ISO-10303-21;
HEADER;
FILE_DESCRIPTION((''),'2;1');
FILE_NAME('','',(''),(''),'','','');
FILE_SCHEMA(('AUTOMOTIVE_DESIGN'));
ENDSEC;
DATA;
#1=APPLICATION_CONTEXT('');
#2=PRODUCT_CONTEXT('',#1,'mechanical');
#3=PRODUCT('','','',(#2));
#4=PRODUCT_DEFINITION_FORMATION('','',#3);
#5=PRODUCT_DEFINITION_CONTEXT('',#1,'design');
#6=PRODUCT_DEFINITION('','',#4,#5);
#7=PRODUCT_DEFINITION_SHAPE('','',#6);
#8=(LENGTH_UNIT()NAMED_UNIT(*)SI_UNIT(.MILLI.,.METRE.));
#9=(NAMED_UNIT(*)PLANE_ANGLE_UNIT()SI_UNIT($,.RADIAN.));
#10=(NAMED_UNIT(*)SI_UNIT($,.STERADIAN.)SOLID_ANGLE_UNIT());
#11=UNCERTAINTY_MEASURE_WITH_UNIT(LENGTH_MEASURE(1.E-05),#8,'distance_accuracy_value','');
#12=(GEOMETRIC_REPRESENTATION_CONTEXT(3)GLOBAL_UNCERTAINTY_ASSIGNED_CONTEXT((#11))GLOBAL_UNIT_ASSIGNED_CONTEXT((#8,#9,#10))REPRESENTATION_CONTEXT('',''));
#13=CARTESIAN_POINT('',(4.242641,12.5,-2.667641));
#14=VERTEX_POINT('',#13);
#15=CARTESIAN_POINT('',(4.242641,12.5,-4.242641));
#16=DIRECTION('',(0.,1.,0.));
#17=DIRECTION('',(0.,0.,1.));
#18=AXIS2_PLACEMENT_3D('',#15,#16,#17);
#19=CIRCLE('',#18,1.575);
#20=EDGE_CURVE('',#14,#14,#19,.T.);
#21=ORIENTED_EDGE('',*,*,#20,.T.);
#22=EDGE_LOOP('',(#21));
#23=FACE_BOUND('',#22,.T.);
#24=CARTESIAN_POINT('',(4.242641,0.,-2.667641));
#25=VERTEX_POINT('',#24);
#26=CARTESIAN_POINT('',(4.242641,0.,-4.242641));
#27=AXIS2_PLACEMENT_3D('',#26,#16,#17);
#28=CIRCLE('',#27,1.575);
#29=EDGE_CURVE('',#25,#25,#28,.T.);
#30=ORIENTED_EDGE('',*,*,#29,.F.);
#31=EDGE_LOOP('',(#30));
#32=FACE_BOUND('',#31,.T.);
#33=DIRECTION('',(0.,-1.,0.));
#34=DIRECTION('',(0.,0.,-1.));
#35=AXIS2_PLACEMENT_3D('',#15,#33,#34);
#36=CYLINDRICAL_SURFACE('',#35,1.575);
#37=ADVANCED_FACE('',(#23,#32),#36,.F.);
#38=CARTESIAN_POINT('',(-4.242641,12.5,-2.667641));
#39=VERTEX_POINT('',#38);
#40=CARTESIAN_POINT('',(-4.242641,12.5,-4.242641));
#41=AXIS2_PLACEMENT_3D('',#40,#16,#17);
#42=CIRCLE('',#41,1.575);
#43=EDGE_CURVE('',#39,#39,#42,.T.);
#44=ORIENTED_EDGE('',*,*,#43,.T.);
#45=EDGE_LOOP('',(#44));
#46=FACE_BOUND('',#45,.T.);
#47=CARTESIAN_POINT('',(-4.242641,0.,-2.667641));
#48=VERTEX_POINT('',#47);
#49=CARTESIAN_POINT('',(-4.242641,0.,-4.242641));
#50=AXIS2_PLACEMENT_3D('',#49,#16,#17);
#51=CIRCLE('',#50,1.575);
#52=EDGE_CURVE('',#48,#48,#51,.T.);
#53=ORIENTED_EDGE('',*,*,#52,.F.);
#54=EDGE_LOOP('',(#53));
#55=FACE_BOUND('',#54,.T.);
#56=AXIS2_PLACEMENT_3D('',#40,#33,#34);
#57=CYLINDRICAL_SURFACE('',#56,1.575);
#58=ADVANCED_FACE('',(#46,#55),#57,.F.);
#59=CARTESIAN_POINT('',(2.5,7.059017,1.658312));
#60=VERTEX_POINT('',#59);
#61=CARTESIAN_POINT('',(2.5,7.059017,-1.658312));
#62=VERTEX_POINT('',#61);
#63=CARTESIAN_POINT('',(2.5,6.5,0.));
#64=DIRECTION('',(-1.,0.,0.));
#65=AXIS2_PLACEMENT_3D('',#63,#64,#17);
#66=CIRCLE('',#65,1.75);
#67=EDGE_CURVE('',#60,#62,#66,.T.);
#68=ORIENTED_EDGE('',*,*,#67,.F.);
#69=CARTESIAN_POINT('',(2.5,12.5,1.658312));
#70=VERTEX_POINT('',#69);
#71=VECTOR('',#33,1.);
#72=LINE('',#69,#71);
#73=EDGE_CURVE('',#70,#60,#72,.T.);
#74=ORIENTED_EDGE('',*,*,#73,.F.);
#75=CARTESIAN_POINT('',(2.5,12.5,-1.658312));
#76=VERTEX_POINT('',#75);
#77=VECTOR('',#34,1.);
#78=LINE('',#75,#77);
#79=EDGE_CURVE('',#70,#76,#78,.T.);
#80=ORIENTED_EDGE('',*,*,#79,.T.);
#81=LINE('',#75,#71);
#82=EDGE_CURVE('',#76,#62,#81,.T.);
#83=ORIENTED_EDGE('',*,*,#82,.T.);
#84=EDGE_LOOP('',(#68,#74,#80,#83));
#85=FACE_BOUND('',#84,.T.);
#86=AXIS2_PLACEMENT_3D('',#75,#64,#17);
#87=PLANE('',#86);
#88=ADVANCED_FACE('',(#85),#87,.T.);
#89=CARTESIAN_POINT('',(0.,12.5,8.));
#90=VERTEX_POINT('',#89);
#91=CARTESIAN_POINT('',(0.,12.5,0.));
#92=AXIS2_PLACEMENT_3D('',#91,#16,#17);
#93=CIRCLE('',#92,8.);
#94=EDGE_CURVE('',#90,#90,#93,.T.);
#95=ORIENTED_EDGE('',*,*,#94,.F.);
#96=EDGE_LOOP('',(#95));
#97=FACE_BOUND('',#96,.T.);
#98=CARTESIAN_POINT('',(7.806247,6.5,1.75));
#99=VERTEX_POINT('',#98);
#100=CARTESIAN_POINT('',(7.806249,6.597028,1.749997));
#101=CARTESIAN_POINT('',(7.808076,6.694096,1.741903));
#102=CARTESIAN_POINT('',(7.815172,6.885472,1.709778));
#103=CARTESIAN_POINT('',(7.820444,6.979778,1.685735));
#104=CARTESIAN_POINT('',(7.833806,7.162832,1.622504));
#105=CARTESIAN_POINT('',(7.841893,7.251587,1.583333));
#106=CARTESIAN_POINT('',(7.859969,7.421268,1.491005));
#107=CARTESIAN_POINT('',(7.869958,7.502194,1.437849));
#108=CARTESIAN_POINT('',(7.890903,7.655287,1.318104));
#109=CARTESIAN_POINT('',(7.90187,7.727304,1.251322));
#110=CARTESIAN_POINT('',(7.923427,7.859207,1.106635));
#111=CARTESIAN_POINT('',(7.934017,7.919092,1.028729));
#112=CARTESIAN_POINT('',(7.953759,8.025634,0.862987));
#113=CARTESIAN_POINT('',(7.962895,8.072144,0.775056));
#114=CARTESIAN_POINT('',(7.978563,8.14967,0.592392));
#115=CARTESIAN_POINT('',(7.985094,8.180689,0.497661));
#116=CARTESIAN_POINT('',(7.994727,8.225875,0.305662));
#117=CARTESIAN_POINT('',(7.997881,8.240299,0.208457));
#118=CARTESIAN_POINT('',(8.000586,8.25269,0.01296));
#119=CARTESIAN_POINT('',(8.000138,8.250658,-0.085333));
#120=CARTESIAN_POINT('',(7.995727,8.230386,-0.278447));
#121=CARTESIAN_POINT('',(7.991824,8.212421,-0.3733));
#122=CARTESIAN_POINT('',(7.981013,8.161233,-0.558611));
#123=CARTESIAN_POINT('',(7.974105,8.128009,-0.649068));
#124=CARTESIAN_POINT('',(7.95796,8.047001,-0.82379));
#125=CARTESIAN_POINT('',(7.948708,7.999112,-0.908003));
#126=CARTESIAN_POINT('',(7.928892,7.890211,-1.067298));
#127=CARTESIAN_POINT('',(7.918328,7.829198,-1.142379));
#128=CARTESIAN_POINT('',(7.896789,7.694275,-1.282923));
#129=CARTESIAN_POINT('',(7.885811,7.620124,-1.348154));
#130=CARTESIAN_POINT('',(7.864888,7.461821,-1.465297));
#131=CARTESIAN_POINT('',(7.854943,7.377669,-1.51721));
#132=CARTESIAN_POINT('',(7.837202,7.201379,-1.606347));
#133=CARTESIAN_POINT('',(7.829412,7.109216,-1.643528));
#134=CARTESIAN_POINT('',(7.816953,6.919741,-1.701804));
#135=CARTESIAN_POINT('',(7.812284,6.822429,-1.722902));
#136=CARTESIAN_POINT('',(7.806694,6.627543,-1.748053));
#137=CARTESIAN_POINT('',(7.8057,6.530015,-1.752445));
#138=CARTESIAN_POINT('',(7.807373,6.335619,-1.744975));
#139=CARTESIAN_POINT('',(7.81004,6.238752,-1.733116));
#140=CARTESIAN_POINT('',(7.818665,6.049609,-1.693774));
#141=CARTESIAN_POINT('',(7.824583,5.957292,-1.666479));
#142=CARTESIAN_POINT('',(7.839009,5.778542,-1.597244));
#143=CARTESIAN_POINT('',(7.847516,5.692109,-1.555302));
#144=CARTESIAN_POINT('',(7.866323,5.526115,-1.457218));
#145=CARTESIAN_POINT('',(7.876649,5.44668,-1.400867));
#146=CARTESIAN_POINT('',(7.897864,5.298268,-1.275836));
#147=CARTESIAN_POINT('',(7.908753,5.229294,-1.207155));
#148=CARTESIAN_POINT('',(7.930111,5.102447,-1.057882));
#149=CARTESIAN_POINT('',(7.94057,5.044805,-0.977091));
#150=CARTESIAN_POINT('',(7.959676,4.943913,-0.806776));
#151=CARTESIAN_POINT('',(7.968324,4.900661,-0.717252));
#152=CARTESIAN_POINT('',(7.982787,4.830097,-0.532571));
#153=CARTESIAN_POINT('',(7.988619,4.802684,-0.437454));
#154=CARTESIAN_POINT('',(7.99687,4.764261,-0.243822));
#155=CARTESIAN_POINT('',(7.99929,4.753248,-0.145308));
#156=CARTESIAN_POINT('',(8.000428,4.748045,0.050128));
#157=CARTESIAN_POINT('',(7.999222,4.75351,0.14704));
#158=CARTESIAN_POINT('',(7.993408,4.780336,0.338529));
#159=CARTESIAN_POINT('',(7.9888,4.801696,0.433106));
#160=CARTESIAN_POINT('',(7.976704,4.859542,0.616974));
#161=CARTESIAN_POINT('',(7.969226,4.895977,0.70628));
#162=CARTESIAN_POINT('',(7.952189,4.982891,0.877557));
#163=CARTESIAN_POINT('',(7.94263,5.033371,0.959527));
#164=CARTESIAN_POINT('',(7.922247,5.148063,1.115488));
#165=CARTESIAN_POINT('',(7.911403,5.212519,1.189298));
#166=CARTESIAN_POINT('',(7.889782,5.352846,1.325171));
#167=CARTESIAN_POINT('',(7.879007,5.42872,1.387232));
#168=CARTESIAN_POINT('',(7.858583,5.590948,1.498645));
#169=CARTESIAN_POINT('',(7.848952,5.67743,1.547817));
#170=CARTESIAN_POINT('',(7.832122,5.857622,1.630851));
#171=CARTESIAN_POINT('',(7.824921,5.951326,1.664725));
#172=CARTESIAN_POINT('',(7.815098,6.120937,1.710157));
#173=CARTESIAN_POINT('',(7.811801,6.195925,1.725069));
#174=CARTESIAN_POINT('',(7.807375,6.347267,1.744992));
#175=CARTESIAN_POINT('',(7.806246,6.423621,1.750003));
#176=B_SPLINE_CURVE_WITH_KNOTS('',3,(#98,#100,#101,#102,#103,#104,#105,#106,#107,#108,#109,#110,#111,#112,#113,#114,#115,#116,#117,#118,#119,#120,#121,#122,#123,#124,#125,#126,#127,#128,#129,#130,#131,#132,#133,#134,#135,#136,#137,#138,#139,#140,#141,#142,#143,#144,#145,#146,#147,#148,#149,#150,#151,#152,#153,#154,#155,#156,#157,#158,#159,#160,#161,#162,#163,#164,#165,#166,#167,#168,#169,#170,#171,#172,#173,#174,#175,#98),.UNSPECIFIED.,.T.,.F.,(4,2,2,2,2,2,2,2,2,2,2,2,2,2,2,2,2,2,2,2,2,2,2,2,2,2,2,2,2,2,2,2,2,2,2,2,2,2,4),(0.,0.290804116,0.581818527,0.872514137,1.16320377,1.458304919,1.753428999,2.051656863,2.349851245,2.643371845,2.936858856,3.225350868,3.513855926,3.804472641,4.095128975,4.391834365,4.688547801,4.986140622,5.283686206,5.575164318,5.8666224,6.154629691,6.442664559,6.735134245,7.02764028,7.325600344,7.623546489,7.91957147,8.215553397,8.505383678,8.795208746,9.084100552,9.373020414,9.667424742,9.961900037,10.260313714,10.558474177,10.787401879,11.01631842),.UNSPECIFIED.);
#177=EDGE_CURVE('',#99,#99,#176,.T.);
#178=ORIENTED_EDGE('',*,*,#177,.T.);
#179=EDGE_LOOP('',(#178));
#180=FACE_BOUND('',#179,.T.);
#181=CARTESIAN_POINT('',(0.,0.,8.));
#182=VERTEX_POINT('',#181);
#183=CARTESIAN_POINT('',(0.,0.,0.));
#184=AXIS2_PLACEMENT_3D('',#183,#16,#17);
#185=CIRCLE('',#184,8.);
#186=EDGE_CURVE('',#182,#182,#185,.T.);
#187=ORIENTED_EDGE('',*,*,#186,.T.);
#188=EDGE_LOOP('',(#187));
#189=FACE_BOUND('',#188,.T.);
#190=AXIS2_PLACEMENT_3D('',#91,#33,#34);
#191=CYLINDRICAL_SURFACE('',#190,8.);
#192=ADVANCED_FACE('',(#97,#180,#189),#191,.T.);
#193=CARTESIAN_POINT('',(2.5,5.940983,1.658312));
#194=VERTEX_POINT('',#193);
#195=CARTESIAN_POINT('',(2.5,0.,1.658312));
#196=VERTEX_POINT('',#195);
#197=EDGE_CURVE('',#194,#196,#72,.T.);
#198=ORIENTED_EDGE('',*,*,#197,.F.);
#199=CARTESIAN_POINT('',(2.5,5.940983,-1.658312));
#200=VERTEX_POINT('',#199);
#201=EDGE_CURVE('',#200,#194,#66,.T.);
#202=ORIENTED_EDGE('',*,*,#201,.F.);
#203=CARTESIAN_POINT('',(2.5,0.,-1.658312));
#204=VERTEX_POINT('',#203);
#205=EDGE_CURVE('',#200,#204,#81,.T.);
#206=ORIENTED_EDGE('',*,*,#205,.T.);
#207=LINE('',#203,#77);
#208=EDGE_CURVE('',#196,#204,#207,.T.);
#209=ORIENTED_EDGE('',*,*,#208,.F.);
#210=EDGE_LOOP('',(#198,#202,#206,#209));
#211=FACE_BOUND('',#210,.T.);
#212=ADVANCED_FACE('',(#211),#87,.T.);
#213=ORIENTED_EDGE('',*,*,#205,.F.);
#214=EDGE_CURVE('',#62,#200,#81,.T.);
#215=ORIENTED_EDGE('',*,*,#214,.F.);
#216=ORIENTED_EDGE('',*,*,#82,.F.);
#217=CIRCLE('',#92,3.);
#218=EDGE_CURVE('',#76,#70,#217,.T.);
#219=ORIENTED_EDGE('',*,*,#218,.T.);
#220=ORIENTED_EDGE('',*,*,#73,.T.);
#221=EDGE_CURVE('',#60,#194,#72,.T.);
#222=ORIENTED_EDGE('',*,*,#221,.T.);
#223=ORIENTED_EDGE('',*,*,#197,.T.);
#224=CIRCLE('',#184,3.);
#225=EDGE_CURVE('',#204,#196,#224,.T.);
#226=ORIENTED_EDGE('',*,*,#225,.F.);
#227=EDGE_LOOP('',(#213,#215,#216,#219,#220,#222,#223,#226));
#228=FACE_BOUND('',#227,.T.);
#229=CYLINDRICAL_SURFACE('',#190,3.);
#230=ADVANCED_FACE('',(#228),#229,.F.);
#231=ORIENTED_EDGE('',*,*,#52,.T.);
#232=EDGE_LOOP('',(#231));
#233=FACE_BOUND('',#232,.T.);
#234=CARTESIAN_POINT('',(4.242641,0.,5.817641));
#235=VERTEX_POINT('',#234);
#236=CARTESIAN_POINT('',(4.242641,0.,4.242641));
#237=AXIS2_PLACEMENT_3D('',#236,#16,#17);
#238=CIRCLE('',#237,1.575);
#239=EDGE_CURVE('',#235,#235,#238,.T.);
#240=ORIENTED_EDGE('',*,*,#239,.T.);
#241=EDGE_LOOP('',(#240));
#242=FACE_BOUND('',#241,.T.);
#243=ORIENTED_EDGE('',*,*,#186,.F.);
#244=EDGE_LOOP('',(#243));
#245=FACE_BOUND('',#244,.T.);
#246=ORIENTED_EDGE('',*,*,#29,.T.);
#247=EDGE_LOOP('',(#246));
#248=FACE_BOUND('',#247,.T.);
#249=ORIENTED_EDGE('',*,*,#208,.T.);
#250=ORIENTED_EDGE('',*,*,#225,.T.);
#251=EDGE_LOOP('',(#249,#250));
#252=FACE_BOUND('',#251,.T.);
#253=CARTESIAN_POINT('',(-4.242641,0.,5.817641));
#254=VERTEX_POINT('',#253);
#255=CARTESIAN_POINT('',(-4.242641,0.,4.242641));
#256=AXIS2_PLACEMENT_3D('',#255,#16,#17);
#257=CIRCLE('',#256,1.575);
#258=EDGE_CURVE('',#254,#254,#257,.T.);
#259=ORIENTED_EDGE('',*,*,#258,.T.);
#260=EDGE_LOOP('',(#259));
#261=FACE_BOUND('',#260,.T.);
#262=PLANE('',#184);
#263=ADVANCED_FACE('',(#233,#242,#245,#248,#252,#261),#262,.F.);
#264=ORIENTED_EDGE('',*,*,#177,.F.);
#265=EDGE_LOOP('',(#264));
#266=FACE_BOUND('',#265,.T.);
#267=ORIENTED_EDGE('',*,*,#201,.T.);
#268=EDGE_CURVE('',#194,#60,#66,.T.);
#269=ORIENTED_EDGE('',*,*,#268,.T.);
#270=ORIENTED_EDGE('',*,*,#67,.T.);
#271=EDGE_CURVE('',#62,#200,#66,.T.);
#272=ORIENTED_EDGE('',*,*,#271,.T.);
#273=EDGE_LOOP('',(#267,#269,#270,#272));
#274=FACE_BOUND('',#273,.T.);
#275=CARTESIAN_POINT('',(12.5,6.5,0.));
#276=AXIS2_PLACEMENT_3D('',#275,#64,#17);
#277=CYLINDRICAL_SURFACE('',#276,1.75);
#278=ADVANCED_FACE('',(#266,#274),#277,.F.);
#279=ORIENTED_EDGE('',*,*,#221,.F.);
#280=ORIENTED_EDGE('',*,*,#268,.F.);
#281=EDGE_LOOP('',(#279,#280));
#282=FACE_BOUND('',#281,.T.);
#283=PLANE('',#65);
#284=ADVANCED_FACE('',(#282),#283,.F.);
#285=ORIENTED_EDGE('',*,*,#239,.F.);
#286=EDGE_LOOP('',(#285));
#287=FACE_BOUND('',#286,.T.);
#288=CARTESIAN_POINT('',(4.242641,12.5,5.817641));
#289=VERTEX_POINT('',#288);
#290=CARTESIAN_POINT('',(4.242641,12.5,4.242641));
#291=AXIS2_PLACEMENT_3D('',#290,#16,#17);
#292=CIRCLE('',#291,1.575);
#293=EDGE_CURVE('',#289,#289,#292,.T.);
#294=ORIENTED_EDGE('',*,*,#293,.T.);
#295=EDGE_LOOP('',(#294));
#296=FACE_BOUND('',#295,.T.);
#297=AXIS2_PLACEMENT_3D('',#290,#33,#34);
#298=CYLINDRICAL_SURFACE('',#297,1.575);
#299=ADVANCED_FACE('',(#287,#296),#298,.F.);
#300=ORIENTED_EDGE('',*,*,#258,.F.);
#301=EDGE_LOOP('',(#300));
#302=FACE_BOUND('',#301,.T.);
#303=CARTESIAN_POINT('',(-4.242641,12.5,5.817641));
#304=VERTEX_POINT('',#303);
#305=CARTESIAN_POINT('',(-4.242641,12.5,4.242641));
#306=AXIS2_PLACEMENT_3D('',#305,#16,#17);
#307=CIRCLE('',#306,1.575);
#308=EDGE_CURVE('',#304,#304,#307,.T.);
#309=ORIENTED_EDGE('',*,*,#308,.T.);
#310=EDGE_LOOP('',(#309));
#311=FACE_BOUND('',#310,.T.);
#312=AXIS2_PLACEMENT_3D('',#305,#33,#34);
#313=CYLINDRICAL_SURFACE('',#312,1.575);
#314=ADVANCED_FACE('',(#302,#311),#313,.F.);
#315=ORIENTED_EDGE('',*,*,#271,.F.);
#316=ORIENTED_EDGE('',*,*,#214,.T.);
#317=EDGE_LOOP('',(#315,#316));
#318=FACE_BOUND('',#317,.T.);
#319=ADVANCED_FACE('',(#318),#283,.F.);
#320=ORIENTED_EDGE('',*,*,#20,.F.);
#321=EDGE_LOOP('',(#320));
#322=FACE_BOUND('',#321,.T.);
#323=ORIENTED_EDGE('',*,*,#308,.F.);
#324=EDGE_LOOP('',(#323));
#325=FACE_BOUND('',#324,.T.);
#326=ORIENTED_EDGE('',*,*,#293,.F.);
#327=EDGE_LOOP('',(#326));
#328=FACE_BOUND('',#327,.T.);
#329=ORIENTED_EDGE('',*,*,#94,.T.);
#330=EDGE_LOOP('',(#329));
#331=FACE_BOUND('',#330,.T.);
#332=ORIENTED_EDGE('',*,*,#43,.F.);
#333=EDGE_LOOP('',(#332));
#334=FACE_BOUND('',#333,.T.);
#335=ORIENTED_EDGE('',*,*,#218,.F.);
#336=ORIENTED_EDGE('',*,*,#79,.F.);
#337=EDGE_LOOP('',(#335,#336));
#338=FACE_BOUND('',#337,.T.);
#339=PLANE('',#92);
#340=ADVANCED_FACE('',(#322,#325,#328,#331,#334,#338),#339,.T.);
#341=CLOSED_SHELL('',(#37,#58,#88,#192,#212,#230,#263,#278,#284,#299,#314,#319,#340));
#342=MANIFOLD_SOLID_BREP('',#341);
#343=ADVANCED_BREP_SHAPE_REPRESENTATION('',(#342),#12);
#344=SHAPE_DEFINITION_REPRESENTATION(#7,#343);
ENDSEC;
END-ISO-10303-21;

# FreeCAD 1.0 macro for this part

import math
import FreeCAD as App
import Part
import Sketcher

V = App.Vector

doc = App.newDocument("Part")
body = doc.addObject("PartDesign::Body", "Body")

# Sketch on XZ plane
sketch1 = doc.addObject("Sketcher::SketchObject", "Sketch")
body.addObject(sketch1)
sketch1.AttachmentSupport = (doc.XZ_Plane, [""])
sketch1.MapMode = "FlatFace"
sketch1.addGeometry([
    Part.Circle(V(0, 0, 0), V(0, 0, 1), 8),  # 0
    Part.Circle(V(-4.242641, -4.242641, 0), V(0, 0, 1), 1.575),  # 1
    Part.ArcOfCircle(Part.Circle(V(0, 0, 0), V(0, 0, 1), 3), math.radians(33.55731), math.radians(326.44269)),  # 2
    Part.LineSegment(V(2.5, -1.658312, 0), V(2.5, 1.658312, 0)),  # 3
    Part.Circle(V(-4.242641, 4.242641, 0), V(0, 0, 1), 1.575),  # 4
    Part.Circle(V(4.242641, -4.242641, 0), V(0, 0, 1), 1.575),  # 5
    Part.Circle(V(4.242641, 4.242641, 0), V(0, 0, 1), 1.575),  # 6
], False)
sketch1.addConstraint([
    Sketcher.Constraint("Coincident", 2, 1, 3, 2),
    Sketcher.Constraint("Coincident", 3, 1, 2, 2),
    Sketcher.Constraint("Vertical", 3),
    Sketcher.Constraint("Coincident", 0, 3, -1, 1),
    Sketcher.Constraint("Coincident", 2, 3, -1, 1),
    Sketcher.Constraint("Equal", 1, 4),
    Sketcher.Constraint("Equal", 4, 5),
    Sketcher.Constraint("Equal", 5, 6),
    Sketcher.Constraint("Symmetric", 4, 3, 5, 3, -1, 1),
    Sketcher.Constraint("Symmetric", 1, 3, 6, 3, -1, 1),
    Sketcher.Constraint("Symmetric", 1, 3, 5, 3, -2),
    Sketcher.Constraint("Diameter", 0, 16.0),
    Sketcher.Constraint("Radius", 2, 3.0),
    Sketcher.Constraint("Diameter", 1, 3.15),
    Sketcher.Constraint("DistanceX", -1, 1, 2, 1, 2.5),
    Sketcher.Constraint("DistanceX", 1, 3, -1, 1, 4.242641),
    Sketcher.Constraint("DistanceY", 1, 3, -1, 1, 4.242641),
])
pad1 = doc.addObject("PartDesign::Pad", "Pad")
body.addObject(pad1)
pad1.Profile = sketch1
pad1.Length = 12.5
pad1.Reversed = True

# Sketch on YZ plane
sketch2 = doc.addObject("Sketcher::SketchObject", "Sketch001")
body.addObject(sketch2)
sketch2.AttachmentSupport = (doc.YZ_Plane, [""])
sketch2.MapMode = "FlatFace"
sketch2.AttachmentOffset = App.Placement(V(0, 0, 2.5), App.Rotation())
sketch2.addGeometry(Part.Circle(V(6.5, 0, 0), V(0, 0, 1), 1.75), False)
sketch2.addConstraint([
    Sketcher.Constraint("PointOnObject", 0, 3, -1),
    Sketcher.Constraint("Diameter", 0, 3.5),
    Sketcher.Constraint("DistanceX", -1, 1, 0, 3, 6.5),
])
pocket1 = doc.addObject("PartDesign::Pocket", "Pocket")
body.addObject(pocket1)
pocket1.Profile = sketch2
pocket1.Length = 10
pocket1.Reversed = True

doc.recompute()
